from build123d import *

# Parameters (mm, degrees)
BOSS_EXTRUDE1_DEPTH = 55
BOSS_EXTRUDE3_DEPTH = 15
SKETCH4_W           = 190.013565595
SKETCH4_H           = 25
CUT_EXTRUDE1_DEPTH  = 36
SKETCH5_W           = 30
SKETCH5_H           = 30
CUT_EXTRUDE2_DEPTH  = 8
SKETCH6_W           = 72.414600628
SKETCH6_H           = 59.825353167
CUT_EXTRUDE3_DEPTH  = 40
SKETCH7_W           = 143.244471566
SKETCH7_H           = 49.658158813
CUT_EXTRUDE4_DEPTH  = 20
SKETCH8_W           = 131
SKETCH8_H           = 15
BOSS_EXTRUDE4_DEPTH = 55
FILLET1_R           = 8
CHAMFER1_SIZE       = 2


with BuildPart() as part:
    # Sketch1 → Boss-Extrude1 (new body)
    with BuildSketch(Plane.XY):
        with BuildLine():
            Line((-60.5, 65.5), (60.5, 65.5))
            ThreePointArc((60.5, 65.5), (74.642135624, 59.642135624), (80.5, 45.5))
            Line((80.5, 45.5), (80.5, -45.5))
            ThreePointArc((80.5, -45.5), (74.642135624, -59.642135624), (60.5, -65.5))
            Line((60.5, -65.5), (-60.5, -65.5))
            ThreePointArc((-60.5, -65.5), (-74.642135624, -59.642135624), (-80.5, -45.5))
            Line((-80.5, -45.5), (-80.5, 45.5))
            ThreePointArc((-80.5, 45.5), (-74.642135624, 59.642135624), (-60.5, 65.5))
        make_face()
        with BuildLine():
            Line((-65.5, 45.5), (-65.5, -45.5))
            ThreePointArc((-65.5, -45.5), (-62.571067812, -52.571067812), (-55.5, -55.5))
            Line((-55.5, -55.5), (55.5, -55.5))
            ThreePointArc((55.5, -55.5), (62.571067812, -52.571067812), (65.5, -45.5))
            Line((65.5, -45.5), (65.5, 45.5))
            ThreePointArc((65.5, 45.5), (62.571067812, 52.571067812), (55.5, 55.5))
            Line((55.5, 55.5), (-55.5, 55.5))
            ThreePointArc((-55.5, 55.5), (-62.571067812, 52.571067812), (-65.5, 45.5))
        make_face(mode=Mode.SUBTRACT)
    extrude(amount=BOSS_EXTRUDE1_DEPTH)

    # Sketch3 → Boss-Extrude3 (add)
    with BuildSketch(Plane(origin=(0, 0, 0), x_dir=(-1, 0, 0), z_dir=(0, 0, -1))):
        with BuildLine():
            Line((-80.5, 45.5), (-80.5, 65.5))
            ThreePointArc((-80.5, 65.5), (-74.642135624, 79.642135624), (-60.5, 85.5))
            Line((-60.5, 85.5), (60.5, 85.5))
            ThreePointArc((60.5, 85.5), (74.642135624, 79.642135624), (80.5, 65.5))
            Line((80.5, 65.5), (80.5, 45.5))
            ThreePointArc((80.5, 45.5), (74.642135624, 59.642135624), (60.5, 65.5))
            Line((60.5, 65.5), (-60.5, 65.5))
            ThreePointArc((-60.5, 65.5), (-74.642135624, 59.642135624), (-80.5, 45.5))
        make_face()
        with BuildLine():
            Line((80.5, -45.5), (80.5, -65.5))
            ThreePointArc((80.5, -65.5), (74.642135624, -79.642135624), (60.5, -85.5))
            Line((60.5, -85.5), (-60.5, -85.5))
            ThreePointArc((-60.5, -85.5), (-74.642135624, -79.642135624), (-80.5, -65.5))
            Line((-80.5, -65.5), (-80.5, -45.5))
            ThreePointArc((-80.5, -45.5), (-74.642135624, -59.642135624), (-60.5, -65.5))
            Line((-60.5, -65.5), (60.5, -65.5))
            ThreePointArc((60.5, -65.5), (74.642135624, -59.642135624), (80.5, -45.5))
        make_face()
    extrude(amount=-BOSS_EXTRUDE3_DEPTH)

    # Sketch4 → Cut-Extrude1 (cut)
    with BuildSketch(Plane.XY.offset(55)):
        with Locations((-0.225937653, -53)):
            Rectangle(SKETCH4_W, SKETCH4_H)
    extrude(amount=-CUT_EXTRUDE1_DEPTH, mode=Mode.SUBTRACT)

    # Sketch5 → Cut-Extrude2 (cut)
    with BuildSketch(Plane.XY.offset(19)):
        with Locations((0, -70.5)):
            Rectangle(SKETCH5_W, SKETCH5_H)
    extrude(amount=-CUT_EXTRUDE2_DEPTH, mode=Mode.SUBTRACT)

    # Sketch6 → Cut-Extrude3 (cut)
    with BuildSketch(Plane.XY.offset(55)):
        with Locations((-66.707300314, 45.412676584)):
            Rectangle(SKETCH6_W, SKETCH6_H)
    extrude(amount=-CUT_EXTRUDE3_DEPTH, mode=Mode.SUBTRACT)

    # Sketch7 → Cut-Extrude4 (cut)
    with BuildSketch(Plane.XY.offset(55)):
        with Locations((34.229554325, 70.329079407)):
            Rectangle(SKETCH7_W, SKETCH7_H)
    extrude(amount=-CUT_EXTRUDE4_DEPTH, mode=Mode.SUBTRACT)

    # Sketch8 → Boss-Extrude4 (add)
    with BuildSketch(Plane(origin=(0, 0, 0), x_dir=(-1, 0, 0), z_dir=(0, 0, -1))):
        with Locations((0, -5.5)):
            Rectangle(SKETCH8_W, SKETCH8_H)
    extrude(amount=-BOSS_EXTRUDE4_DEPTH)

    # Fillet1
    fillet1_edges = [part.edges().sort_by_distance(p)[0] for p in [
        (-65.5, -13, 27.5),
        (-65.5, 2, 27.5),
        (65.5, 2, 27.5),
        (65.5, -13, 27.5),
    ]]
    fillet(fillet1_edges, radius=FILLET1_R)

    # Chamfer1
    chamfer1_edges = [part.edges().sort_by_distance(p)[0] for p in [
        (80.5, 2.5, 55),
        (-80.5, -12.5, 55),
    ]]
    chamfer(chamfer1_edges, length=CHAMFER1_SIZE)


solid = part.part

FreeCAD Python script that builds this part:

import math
import FreeCAD as App
import Part
import Sketcher

V = App.Vector


def edges_at(feature, points):
    """Names of the edges that pass closest to the given points."""
    edges = feature.Shape.Edges
    near = lambda p: min(range(len(edges)), key=lambda i: edges[i].distToShape(Part.Vertex(*p))[0])
    return sorted({f"Edge{near(p) + 1}" for p in points})

doc = App.newDocument("Part")
params = doc.addObject("Spreadsheet::Sheet", "Params")
for row, (alias, value) in enumerate([
    ("sketch1_radius", "20 mm"),
    ("sketch1_radius2", "10 mm"),
    ("sketch1_width", "121 mm"),
    ("sketch1_width2", "111 mm"),
    ("sketch1_height", "91 mm"),
    ("pad1_length", "55 mm"),
    ("sketch2_radius", "20 mm"),
    ("sketch2_width", "121 mm"),
    ("pad2_length", "15 mm"),
    ("sketch3_height", "25 mm"),
    ("pocket1_length", "36 mm"),
    ("sketch4_width", "30 mm"),
    ("pocket2_length", "8 mm"),
    ("pocket3_length", "40 mm"),
    ("pocket4_length", "20 mm"),
    ("sketch7_width", "131 mm"),
    ("sketch7_height", "15 mm"),
    ("pad3_length", "55 mm"),
    ("fillet_radius", "8 mm"),
    ("chamfer_size", "2 mm"),
], start=1):
    params.set(f"A{row}", alias)
    params.set(f"B{row}", "=" + value)
    params.setAlias(f"B{row}", alias)

body = doc.addObject("PartDesign::Body", "Body")

# Sketch on XY plane
sketch1 = body.newObject("Sketcher::SketchObject", "Sketch")
sketch1.AttachmentSupport = (doc.getObject("XY_Plane"), [""])
sketch1.MapMode = "FlatFace"
sketch1.addGeometry(Part.LineSegment(V(60.5, 65.5, 0), V(-60.5, 65.5, 0)), False)
sketch1.addGeometry(Part.ArcOfCircle(Part.Circle(V(-60.5, 45.5, 0), V(0, 0, 1), 20), math.radians(90), math.radians(180)), False)
sketch1.addGeometry(Part.LineSegment(V(-80.5, 45.5, 0), V(-80.5, -45.5, 0)), False)
sketch1.addGeometry(Part.ArcOfCircle(Part.Circle(V(-60.5, -45.5, 0), V(0, 0, 1), 20), math.radians(180), math.radians(270)), False)
sketch1.addGeometry(Part.LineSegment(V(-60.5, -65.5, 0), V(60.5, -65.5, 0)), False)
sketch1.addGeometry(Part.ArcOfCircle(Part.Circle(V(60.5, -45.5, 0), V(0, 0, 1), 20), math.radians(-90), math.radians(0)), False)
sketch1.addGeometry(Part.LineSegment(V(80.5, -45.5, 0), V(80.5, 45.5, 0)), False)
sketch1.addGeometry(Part.ArcOfCircle(Part.Circle(V(60.5, 45.5, 0), V(0, 0, 1), 20), math.radians(0), math.radians(90)), False)
sketch1.addGeometry(Part.ArcOfCircle(Part.Circle(V(-55.5, 45.5, 0), V(0, 0, 1), 10), math.radians(90), math.radians(180)), False)
sketch1.addGeometry(Part.LineSegment(V(-55.5, 55.5, 0), V(55.5, 55.5, 0)), False)
sketch1.addGeometry(Part.ArcOfCircle(Part.Circle(V(55.5, 45.5, 0), V(0, 0, 1), 10), math.radians(0), math.radians(90)), False)
sketch1.addGeometry(Part.LineSegment(V(65.5, 45.5, 0), V(65.5, -45.5, 0)), False)
sketch1.addGeometry(Part.ArcOfCircle(Part.Circle(V(55.5, -45.5, 0), V(0, 0, 1), 10), math.radians(-90), math.radians(0)), False)
sketch1.addGeometry(Part.LineSegment(V(55.5, -55.5, 0), V(-55.5, -55.5, 0)), False)
sketch1.addGeometry(Part.ArcOfCircle(Part.Circle(V(-55.5, -45.5, 0), V(0, 0, 1), 10), math.radians(180), math.radians(270)), False)
sketch1.addGeometry(Part.LineSegment(V(-65.5, -45.5, 0), V(-65.5, 45.5, 0)), False)
sketch1.addConstraint(Sketcher.Constraint("Tangent", 0, 2, 1, 1))
sketch1.addConstraint(Sketcher.Constraint("Tangent", 1, 2, 2, 1))
sketch1.addConstraint(Sketcher.Constraint("Tangent", 2, 2, 3, 1))
sketch1.addConstraint(Sketcher.Constraint("Tangent", 3, 2, 4, 1))
sketch1.addConstraint(Sketcher.Constraint("Tangent", 4, 2, 5, 1))
sketch1.addConstraint(Sketcher.Constraint("Tangent", 5, 2, 6, 1))
sketch1.addConstraint(Sketcher.Constraint("Tangent", 6, 2, 7, 1))
sketch1.addConstraint(Sketcher.Constraint("Tangent", 7, 2, 0, 1))
sketch1.addConstraint(Sketcher.Constraint("Tangent", 8, 1, 9, 1))
sketch1.addConstraint(Sketcher.Constraint("Tangent", 9, 2, 10, 2))
sketch1.addConstraint(Sketcher.Constraint("Tangent", 10, 1, 11, 1))
sketch1.addConstraint(Sketcher.Constraint("Tangent", 11, 2, 12, 2))
sketch1.addConstraint(Sketcher.Constraint("Tangent", 12, 1, 13, 1))
sketch1.addConstraint(Sketcher.Constraint("Tangent", 13, 2, 14, 2))
sketch1.addConstraint(Sketcher.Constraint("Tangent", 14, 1, 15, 1))
sketch1.addConstraint(Sketcher.Constraint("Tangent", 15, 2, 8, 2))
sketch1.addConstraint(Sketcher.Constraint("Horizontal", 0))
sketch1.addConstraint(Sketcher.Constraint("Vertical", 2))
sketch1.addConstraint(Sketcher.Constraint("Horizontal", 4))
sketch1.addConstraint(Sketcher.Constraint("Vertical", 6))
sketch1.addConstraint(Sketcher.Constraint("Horizontal", 9))
sketch1.addConstraint(Sketcher.Constraint("Vertical", 11))
sketch1.addConstraint(Sketcher.Constraint("Horizontal", 13))
sketch1.addConstraint(Sketcher.Constraint("Vertical", 15))
sketch1.addConstraint(Sketcher.Constraint("Equal", 1, 3))
sketch1.addConstraint(Sketcher.Constraint("Equal", 3, 5))
sketch1.addConstraint(Sketcher.Constraint("Equal", 5, 7))
sketch1.addConstraint(Sketcher.Constraint("Equal", 8, 10))
sketch1.addConstraint(Sketcher.Constraint("Equal", 10, 12))
sketch1.addConstraint(Sketcher.Constraint("Equal", 12, 14))
sketch1.addConstraint(Sketcher.Constraint("Symmetric", 1, 3, 5, 3, -1, 1))
sketch1.addConstraint(Sketcher.Constraint("Symmetric", 8, 3, 12, 3, -1, 1))
sketch1.addConstraint(Sketcher.Constraint("Horizontal", 7, 3, 8, 3))
sketch1.addConstraint(Sketcher.Constraint("Radius", 1, 20.0))
sketch1.addConstraint(Sketcher.Constraint("Radius", 8, 10.0))
sketch1.addConstraint(Sketcher.Constraint("DistanceX", 0, 2, 0, 1, 121.0))
sketch1.addConstraint(Sketcher.Constraint("DistanceX", 9, 1, 9, 2, 111.0))
sketch1.addConstraint(Sketcher.Constraint("DistanceY", 2, 2, 2, 1, 91.0))
sketch1.setExpression("Constraints[33]", "Params.sketch1_radius")
sketch1.setExpression("Constraints[34]", "Params.sketch1_radius2")
sketch1.setExpression("Constraints[35]", "Params.sketch1_width")
sketch1.setExpression("Constraints[36]", "Params.sketch1_width2")
sketch1.setExpression("Constraints[37]", "Params.sketch1_height")
pad1 = body.newObject("PartDesign::Pad", "Pad")
pad1.Profile = sketch1
pad1.setExpression("Length", "Params.pad1_length")

# Sketch on XY plane
sketch2 = body.newObject("Sketcher::SketchObject", "Sketch001")
sketch2.AttachmentSupport = (doc.getObject("XY_Plane"), [""])
sketch2.MapMode = "FlatFace"
sketch2.addGeometry(Part.LineSegment(V(80.5, 65.5, 0), V(80.5, 45.5, 0)), False)
sketch2.addGeometry(Part.ArcOfCircle(Part.Circle(V(60.5, 45.5, 0), V(0, 0, 1), 20), math.radians(0), math.radians(90)), False)
sketch2.addGeometry(Part.LineSegment(V(60.5, 65.5, 0), V(-60.5, 65.5, 0)), False)
sketch2.addGeometry(Part.ArcOfCircle(Part.Circle(V(-60.5, 45.5, 0), V(0, 0, 1), 20), math.radians(90), math.radians(180)), False)
sketch2.addGeometry(Part.LineSegment(V(-80.5, 45.5, 0), V(-80.5, 65.5, 0)), False)
sketch2.addGeometry(Part.ArcOfCircle(Part.Circle(V(-60.5, 65.5, 0), V(0, 0, 1), 20), math.radians(90), math.radians(180)), False)
sketch2.addGeometry(Part.LineSegment(V(-60.5, 85.5, 0), V(60.5, 85.5, 0)), False)
sketch2.addGeometry(Part.ArcOfCircle(Part.Circle(V(60.5, 65.5, 0), V(0, 0, 1), 20), math.radians(0), math.radians(90)), False)
sketch2.addGeometry(Part.LineSegment(V(-80.5, -65.5, 0), V(-80.5, -45.5, 0)), False)
sketch2.addGeometry(Part.ArcOfCircle(Part.Circle(V(-60.5, -45.5, 0), V(0, 0, 1), 20), math.radians(180), math.radians(270)), False)
sketch2.addGeometry(Part.LineSegment(V(-60.5, -65.5, 0), V(60.5, -65.5, 0)), False)
sketch2.addGeometry(Part.ArcOfCircle(Part.Circle(V(60.5, -45.5, 0), V(0, 0, 1), 20), math.radians(-90), math.radians(0)), False)
sketch2.addGeometry(Part.LineSegment(V(80.5, -45.5, 0), V(80.5, -65.5, 0)), False)
sketch2.addGeometry(Part.ArcOfCircle(Part.Circle(V(60.5, -65.5, 0), V(0, 0, 1), 20), math.radians(-90), math.radians(0)), False)
sketch2.addGeometry(Part.LineSegment(V(60.5, -85.5, 0), V(-60.5, -85.5, 0)), False)
sketch2.addGeometry(Part.ArcOfCircle(Part.Circle(V(-60.5, -65.5, 0), V(0, 0, 1), 20), math.radians(180), math.radians(270)), False)
sketch2.addConstraint(Sketcher.Constraint("Tangent", 0, 2, 1, 1))
sketch2.addConstraint(Sketcher.Constraint("Tangent", 1, 2, 2, 1))
sketch2.addConstraint(Sketcher.Constraint("Tangent", 2, 2, 3, 1))
sketch2.addConstraint(Sketcher.Constraint("Tangent", 3, 2, 4, 1))
sketch2.addConstraint(Sketcher.Constraint("Tangent", 4, 2, 5, 2))
sketch2.addConstraint(Sketcher.Constraint("Tangent", 5, 1, 6, 1))
sketch2.addConstraint(Sketcher.Constraint("Tangent", 6, 2, 7, 2))
sketch2.addConstraint(Sketcher.Constraint("Tangent", 7, 1, 0, 1))
sketch2.addConstraint(Sketcher.Constraint("Tangent", 8, 2, 9, 1))
sketch2.addConstraint(Sketcher.Constraint("Tangent", 9, 2, 10, 1))
sketch2.addConstraint(Sketcher.Constraint("Tangent", 10, 2, 11, 1))
sketch2.addConstraint(Sketcher.Constraint("Tangent", 11, 2, 12, 1))
sketch2.addConstraint(Sketcher.Constraint("Tangent", 12, 2, 13, 2))
sketch2.addConstraint(Sketcher.Constraint("Tangent", 13, 1, 14, 1))
sketch2.addConstraint(Sketcher.Constraint("Tangent", 14, 2, 15, 2))
sketch2.addConstraint(Sketcher.Constraint("Tangent", 15, 1, 8, 1))
sketch2.addConstraint(Sketcher.Constraint("Vertical", 0))
sketch2.addConstraint(Sketcher.Constraint("Horizontal", 2))
sketch2.addConstraint(Sketcher.Constraint("Vertical", 4))
sketch2.addConstraint(Sketcher.Constraint("Horizontal", 6))
sketch2.addConstraint(Sketcher.Constraint("Vertical", 8))
sketch2.addConstraint(Sketcher.Constraint("Horizontal", 10))
sketch2.addConstraint(Sketcher.Constraint("Vertical", 12))
sketch2.addConstraint(Sketcher.Constraint("Horizontal", 14))
sketch2.addConstraint(Sketcher.Constraint("Coincident", 1, 2, 7, 3))
sketch2.addConstraint(Sketcher.Constraint("Coincident", 2, 2, 5, 3))
sketch2.addConstraint(Sketcher.Constraint("Coincident", 9, 2, 15, 3))
sketch2.addConstraint(Sketcher.Constraint("Coincident", 10, 2, 13, 3))
sketch2.addConstraint(Sketcher.Constraint("Equal", 7, 9))
sketch2.addConstraint(Sketcher.Constraint("Symmetric", 1, 3, 9, 3, -1, 1))
sketch2.addConstraint(Sketcher.Constraint("Vertical", 5, 3, 9, 3))
sketch2.addConstraint(Sketcher.Constraint("Vertical", 7, 3, 11, 3))
sketch2.addConstraint(Sketcher.Constraint("Radius", 1, 20.0))
sketch2.addConstraint(Sketcher.Constraint("DistanceX", 2, 2, 2, 1, 121.0))
sketch2.addConstraint(Sketcher.Constraint("DistanceY", 9, 3, 3, 3, 91.0))
sketch2.setExpression("Constraints[32]", "Params.sketch2_radius")
sketch2.setExpression("Constraints[33]", "Params.sketch2_width")
pad2 = body.newObject("PartDesign::Pad", "Pad001")
pad2.Profile = sketch2
pad2.setExpression("Length", "Params.pad2_length")

# Sketch on XY plane
sketch3 = body.newObject("Sketcher::SketchObject", "Sketch002")
sketch3.AttachmentSupport = (doc.getObject("XY_Plane"), [""])
sketch3.MapMode = "FlatFace"
sketch3.AttachmentOffset = App.Placement(V(0, 0, 55), App.Rotation())
sketch3.addGeometry(Part.LineSegment(V(-95.23272, -40.5, 0), V(-95.23272, -65.5, 0)), False)
sketch3.addGeometry(Part.LineSegment(V(-95.23272, -65.5, 0), V(94.780845, -65.5, 0)), False)
sketch3.addGeometry(Part.LineSegment(V(94.780845, -65.5, 0), V(94.780845, -40.5, 0)), False)
sketch3.addGeometry(Part.LineSegment(V(94.780845, -40.5, 0), V(-95.23272, -40.5, 0)), False)
sketch3.addConstraint(Sketcher.Constraint("Coincident", 0, 2, 1, 1))
sketch3.addConstraint(Sketcher.Constraint("Coincident", 1, 2, 2, 1))
sketch3.addConstraint(Sketcher.Constraint("Coincident", 2, 2, 3, 1))
sketch3.addConstraint(Sketcher.Constraint("Coincident", 3, 2, 0, 1))
sketch3.addConstraint(Sketcher.Constraint("Vertical", 0))
sketch3.addConstraint(Sketcher.Constraint("Horizontal", 1))
sketch3.addConstraint(Sketcher.Constraint("Vertical", 2))
sketch3.addConstraint(Sketcher.Constraint("Horizontal", 3))
sketch3.addConstraint(Sketcher.Constraint("DistanceY", 0, 2, 0, 1, 25.0))
sketch3.addConstraint(Sketcher.Constraint("DistanceY", 0, 2, -1, 1, 65.5))
sketch3.addConstraint(Sketcher.Constraint("DistanceX", 1, 1, 1, 2, 190.013566))
sketch3.addConstraint(Sketcher.Constraint("DistanceX", 0, 2, -1, 1, 95.23272))
sketch3.setExpression("Constraints[8]", "Params.sketch3_height")
pocket1 = body.newObject("PartDesign::Pocket", "Pocket")
pocket1.Profile = sketch3
pocket1.setExpression("Length", "Params.pocket1_length")

# Sketch on XY plane
sketch4 = body.newObject("Sketcher::SketchObject", "Sketch003")
sketch4.AttachmentSupport = (doc.getObject("XY_Plane"), [""])
sketch4.MapMode = "FlatFace"
sketch4.AttachmentOffset = App.Placement(V(0, 0, 19), App.Rotation())
sketch4.addGeometry(Part.LineSegment(V(-15, -55.5, 0), V(-15, -85.5, 0)), False)
sketch4.addGeometry(Part.LineSegment(V(-15, -85.5, 0), V(15, -85.5, 0)), False)
sketch4.addGeometry(Part.LineSegment(V(15, -85.5, 0), V(15, -55.5, 0)), False)
sketch4.addGeometry(Part.LineSegment(V(15, -55.5, 0), V(-15, -55.5, 0)), False)
sketch4.addConstraint(Sketcher.Constraint("Coincident", 0, 2, 1, 1))
sketch4.addConstraint(Sketcher.Constraint("Coincident", 1, 2, 2, 1))
sketch4.addConstraint(Sketcher.Constraint("Coincident", 2, 2, 3, 1))
sketch4.addConstraint(Sketcher.Constraint("Coincident", 3, 2, 0, 1))
sketch4.addConstraint(Sketcher.Constraint("Vertical", 0))
sketch4.addConstraint(Sketcher.Constraint("Horizontal", 1))
sketch4.addConstraint(Sketcher.Constraint("Vertical", 2))
sketch4.addConstraint(Sketcher.Constraint("Horizontal", 3))
sketch4.addConstraint(Sketcher.Constraint("Equal", 3, 0))
sketch4.addConstraint(Sketcher.Constraint("DistanceX", 1, 1, 1, 2, 30.0))
sketch4.addConstraint(Sketcher.Constraint("DistanceX", 0, 2, -1, 1, 15.0))
sketch4.addConstraint(Sketcher.Constraint("DistanceY", 0, 2, -1, 1, 85.5))
sketch4.setExpression("Constraints[9]", "Params.sketch4_width")
pocket2 = body.newObject("PartDesign::Pocket", "Pocket001")
pocket2.Profile = sketch4
pocket2.setExpression("Length", "Params.pocket2_length")

# Sketch on XY plane
sketch5 = body.newObject("Sketcher::SketchObject", "Sketch004")
sketch5.AttachmentSupport = (doc.getObject("XY_Plane"), [""])
sketch5.MapMode = "FlatFace"
sketch5.AttachmentOffset = App.Placement(V(0, 0, 55), App.Rotation())
sketch5.addGeometry(Part.LineSegment(V(-102.914601, 75.325353, 0), V(-102.914601, 15.5, 0)), False)
sketch5.addGeometry(Part.LineSegment(V(-102.914601, 15.5, 0), V(-30.5, 15.5, 0)), False)
sketch5.addGeometry(Part.LineSegment(V(-30.5, 15.5, 0), V(-30.5, 75.325353, 0)), False)
sketch5.addGeometry(Part.LineSegment(V(-30.5, 75.325353, 0), V(-102.914601, 75.325353, 0)), False)
sketch5.addConstraint(Sketcher.Constraint("Coincident", 0, 2, 1, 1))
sketch5.addConstraint(Sketcher.Constraint("Coincident", 1, 2, 2, 1))
sketch5.addConstraint(Sketcher.Constraint("Coincident", 2, 2, 3, 1))
sketch5.addConstraint(Sketcher.Constraint("Coincident", 3, 2, 0, 1))
sketch5.addConstraint(Sketcher.Constraint("Vertical", 0))
sketch5.addConstraint(Sketcher.Constraint("Horizontal", 1))
sketch5.addConstraint(Sketcher.Constraint("Vertical", 2))
sketch5.addConstraint(Sketcher.Constraint("Horizontal", 3))
sketch5.addConstraint(Sketcher.Constraint("DistanceY", -1, 1, 0, 2, 15.5))
sketch5.addConstraint(Sketcher.Constraint("DistanceX", 1, 2, -1, 1, 30.5))
sketch5.addConstraint(Sketcher.Constraint("DistanceX", 1, 1, 1, 2, 72.414601))
sketch5.addConstraint(Sketcher.Constraint("DistanceY", 0, 2, 0, 1, 59.825353))
pocket3 = body.newObject("PartDesign::Pocket", "Pocket002")
pocket3.Profile = sketch5
pocket3.setExpression("Length", "Params.pocket3_length")

# Sketch on XY plane
sketch6 = body.newObject("Sketcher::SketchObject", "Sketch005")
sketch6.AttachmentSupport = (doc.getObject("XY_Plane"), [""])
sketch6.MapMode = "FlatFace"
sketch6.AttachmentOffset = App.Placement(V(0, 0, 55), App.Rotation())
sketch6.addGeometry(Part.LineSegment(V(-37.392681, 95.158159, 0), V(-37.392681, 45.5, 0)), False)
sketch6.addGeometry(Part.LineSegment(V(-37.392681, 45.5, 0), V(105.85179, 45.5, 0)), False)
sketch6.addGeometry(Part.LineSegment(V(105.85179, 45.5, 0), V(105.85179, 95.158159, 0)), False)
sketch6.addGeometry(Part.LineSegment(V(105.85179, 95.158159, 0), V(-37.392681, 95.158159, 0)), False)
sketch6.addConstraint(Sketcher.Constraint("Coincident", 0, 2, 1, 1))
sketch6.addConstraint(Sketcher.Constraint("Coincident", 1, 2, 2, 1))
sketch6.addConstraint(Sketcher.Constraint("Coincident", 2, 2, 3, 1))
sketch6.addConstraint(Sketcher.Constraint("Coincident", 3, 2, 0, 1))
sketch6.addConstraint(Sketcher.Constraint("Vertical", 0))
sketch6.addConstraint(Sketcher.Constraint("Horizontal", 1))
sketch6.addConstraint(Sketcher.Constraint("Vertical", 2))
sketch6.addConstraint(Sketcher.Constraint("Horizontal", 3))
sketch6.addConstraint(Sketcher.Constraint("DistanceY", -1, 1, 0, 2, 45.5))
sketch6.addConstraint(Sketcher.Constraint("DistanceX", 1, 1, 1, 2, 143.244472))
sketch6.addConstraint(Sketcher.Constraint("DistanceY", 0, 2, 0, 1, 49.658159))
sketch6.addConstraint(Sketcher.Constraint("DistanceX", 0, 2, -1, 1, 37.392681))
pocket4 = body.newObject("PartDesign::Pocket", "Pocket003")
pocket4.Profile = sketch6
pocket4.setExpression("Length", "Params.pocket4_length")

# Sketch on XY plane
sketch7 = body.newObject("Sketcher::SketchObject", "Sketch006")
sketch7.AttachmentSupport = (doc.getObject("XY_Plane"), [""])
sketch7.MapMode = "FlatFace"
sketch7.addGeometry(Part.LineSegment(V(65.5, 2, 0), V(65.5, -13, 0)), False)
sketch7.addGeometry(Part.LineSegment(V(65.5, -13, 0), V(-65.5, -13, 0)), False)
sketch7.addGeometry(Part.LineSegment(V(-65.5, -13, 0), V(-65.5, 2, 0)), False)
sketch7.addGeometry(Part.LineSegment(V(-65.5, 2, 0), V(65.5, 2, 0)), False)
sketch7.addConstraint(Sketcher.Constraint("Coincident", 0, 2, 1, 1))
sketch7.addConstraint(Sketcher.Constraint("Coincident", 1, 2, 2, 1))
sketch7.addConstraint(Sketcher.Constraint("Coincident", 2, 2, 3, 1))
sketch7.addConstraint(Sketcher.Constraint("Coincident", 3, 2, 0, 1))
sketch7.addConstraint(Sketcher.Constraint("Vertical", 0))
sketch7.addConstraint(Sketcher.Constraint("Horizontal", 1))
sketch7.addConstraint(Sketcher.Constraint("Vertical", 2))
sketch7.addConstraint(Sketcher.Constraint("Horizontal", 3))
sketch7.addConstraint(Sketcher.Constraint("DistanceX", 1, 2, 1, 1, 131.0))
sketch7.addConstraint(Sketcher.Constraint("DistanceY", 0, 2, 0, 1, 15.0))
sketch7.addConstraint(Sketcher.Constraint("DistanceY", 0, 2, -1, 1, 13.0))
sketch7.addConstraint(Sketcher.Constraint("DistanceX", -1, 1, 0, 2, 65.5))
sketch7.setExpression("Constraints[8]", "Params.sketch7_width")
sketch7.setExpression("Constraints[9]", "Params.sketch7_height")
pad3 = body.newObject("PartDesign::Pad", "Pad002")
pad3.Profile = sketch7
pad3.setExpression("Length", "Params.pad3_length")
doc.recompute()

fillet = body.newObject("PartDesign::Fillet", "Fillet")
fillet.Base = (pad3, edges_at(pad3, [
    (-65.5, -13, 27.5),
    (-65.5, 2, 27.5),
    (65.5, 2, 27.5),
    (65.5, -13, 27.5),
]))
fillet.setExpression("Radius", "Params.fillet_radius")
doc.recompute()

chamfer = body.newObject("PartDesign::Chamfer", "Chamfer")
chamfer.Base = (fillet, edges_at(fillet, [(80.5, 2.5, 55), (-80.5, -12.5, 55)]))
chamfer.setExpression("Size", "Params.chamfer_size")

doc.recompute()
